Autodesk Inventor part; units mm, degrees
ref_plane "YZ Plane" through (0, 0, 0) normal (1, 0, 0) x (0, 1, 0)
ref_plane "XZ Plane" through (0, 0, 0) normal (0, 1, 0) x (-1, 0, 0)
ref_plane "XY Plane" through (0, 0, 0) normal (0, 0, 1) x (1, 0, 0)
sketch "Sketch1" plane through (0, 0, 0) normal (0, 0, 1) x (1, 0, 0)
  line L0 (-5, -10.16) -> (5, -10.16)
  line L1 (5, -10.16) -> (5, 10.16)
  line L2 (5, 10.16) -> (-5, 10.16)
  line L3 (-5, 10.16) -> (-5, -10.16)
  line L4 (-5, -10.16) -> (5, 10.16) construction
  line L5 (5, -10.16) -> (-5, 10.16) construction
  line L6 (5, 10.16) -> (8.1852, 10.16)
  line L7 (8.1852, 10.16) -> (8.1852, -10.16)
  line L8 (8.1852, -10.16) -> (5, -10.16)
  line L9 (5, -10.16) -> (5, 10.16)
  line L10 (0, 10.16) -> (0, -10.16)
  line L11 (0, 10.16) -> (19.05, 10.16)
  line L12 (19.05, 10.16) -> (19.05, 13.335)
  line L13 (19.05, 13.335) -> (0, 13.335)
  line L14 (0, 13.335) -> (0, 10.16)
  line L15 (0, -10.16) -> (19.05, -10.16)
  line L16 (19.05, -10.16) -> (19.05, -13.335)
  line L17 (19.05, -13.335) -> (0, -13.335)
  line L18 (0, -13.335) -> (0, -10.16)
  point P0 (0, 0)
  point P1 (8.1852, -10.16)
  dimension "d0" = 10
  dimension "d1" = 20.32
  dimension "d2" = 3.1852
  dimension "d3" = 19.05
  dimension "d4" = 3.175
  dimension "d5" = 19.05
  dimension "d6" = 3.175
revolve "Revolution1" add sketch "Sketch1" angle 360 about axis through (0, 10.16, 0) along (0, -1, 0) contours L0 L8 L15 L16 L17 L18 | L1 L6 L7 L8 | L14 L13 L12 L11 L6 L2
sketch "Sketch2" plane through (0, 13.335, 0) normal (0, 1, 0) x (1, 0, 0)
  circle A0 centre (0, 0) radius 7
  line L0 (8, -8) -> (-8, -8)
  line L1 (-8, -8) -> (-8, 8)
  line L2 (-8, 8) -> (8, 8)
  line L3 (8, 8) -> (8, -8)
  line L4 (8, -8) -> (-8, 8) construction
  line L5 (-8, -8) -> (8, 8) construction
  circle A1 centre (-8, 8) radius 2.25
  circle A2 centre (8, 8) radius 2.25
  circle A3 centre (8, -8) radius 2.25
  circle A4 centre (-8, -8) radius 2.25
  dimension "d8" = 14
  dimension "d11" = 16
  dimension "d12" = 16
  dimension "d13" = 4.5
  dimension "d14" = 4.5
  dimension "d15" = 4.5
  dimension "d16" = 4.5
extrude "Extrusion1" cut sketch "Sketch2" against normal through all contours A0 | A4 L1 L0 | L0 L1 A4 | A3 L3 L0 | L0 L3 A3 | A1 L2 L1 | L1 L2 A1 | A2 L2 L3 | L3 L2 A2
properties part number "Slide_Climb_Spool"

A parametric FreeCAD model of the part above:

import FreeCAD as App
import Part
import Sketcher

V = App.Vector
Q = App.Units.Quantity


def add_polygon(sketch, points):
    """Adds a closed chain of lines whose ends are joined by coincident constraints."""
    first, n = sketch.GeometryCount, len(points)
    for a, b in zip(points, points[1:] + points[:1]):
        sketch.addGeometry(Part.LineSegment(App.Vector(*a, 0), App.Vector(*b, 0)), False)
    for i in range(n):
        sketch.addConstraint(Sketcher.Constraint("Coincident", first + i, 2, first + (i + 1) % n, 1))

doc = App.newDocument("Part")
body = doc.addObject("PartDesign::Body", "Body")

sketch1 = body.newObject("Sketcher::SketchObject", "Sketch")
sketch1.AttachmentSupport = (doc.getObject("XY_Plane"), [""])
sketch1.MapMode = "FlatFace"
add_polygon(sketch1, [(5, -10.2), (0, -10.2), (0, -13.3), (19.1, -13.3), (19.1, -10.2), (8.2, -10.2), (8.2, 10.2), (19.1, 10.2), (19.1, 13.3), (0, 13.3), (0, 10.2), (5, 10.2)])
sketch1.addConstraint([
    Sketcher.Constraint("Horizontal", 0),
    Sketcher.Constraint("Vertical", 1),
    Sketcher.Constraint("Horizontal", 2),
    Sketcher.Constraint("Vertical", 3),
    Sketcher.Constraint("Horizontal", 4),
    Sketcher.Constraint("Vertical", 5),
    Sketcher.Constraint("Horizontal", 6),
    Sketcher.Constraint("Vertical", 7),
    Sketcher.Constraint("Horizontal", 8),
    Sketcher.Constraint("Vertical", 9),
    Sketcher.Constraint("Horizontal", 10),
    Sketcher.Constraint("Vertical", 11),
    Sketcher.Constraint("Symmetric", 1, 2, 8, 2, -1, 1),
    Sketcher.Constraint("Symmetric", 3, 2, 6, 2, -1),
    Sketcher.Constraint("Symmetric", 0, 2, 9, 2, -1),
    Sketcher.Constraint("Horizontal", 0, 2, 3, 2),
    Sketcher.Constraint("DistanceX", 2, 1, 2, 2, Q("19.05 mm")),
    Sketcher.Constraint("DistanceY", 5, 1, 5, 2, Q("20.32 mm")),
    Sketcher.Constraint("DistanceX", 0, 2, 0, 1, Q("5 mm")),
    Sketcher.Constraint("DistanceY", 1, 2, 1, 1, Q("3.175 mm")),
    Sketcher.Constraint("DistanceX", 10, 2, 5, 2, Q("3.1852 mm")),
])
revolution = body.newObject("PartDesign::Revolution", "Revolution")
revolution.Profile = sketch1
revolution.ReferenceAxis = (sketch1, ["V_Axis"])
revolution.Angle = 360

sketch2 = body.newObject("Sketcher::SketchObject", "Sketch001")
sketch2.AttachmentSupport = (doc.getObject("XZ_Plane"), [""])
sketch2.MapMode = "FlatFace"
sketch2.AttachmentOffset = App.Placement(V(0, 0, -13.335), App.Rotation())
sketch2.addGeometry([
    Part.Circle(V(0, 0, 0), V(0, 0, 1), 7),
    Part.Circle(V(-8, 8, 0), V(0, 0, 1), 2.2),
    Part.Circle(V(8, 8, 0), V(0, 0, 1), 2.2),
    Part.Circle(V(-8, -8, 0), V(0, 0, 1), 2.2),
    Part.Circle(V(8, -8, 0), V(0, 0, 1), 2.2),
], False)
sketch2.addConstraint([
    Sketcher.Constraint("Coincident", 0, 3, -1, 1),
    Sketcher.Constraint("Equal", 1, 2),
    Sketcher.Constraint("Equal", 2, 3),
    Sketcher.Constraint("Equal", 3, 4),
    Sketcher.Constraint("Symmetric", 2, 3, 3, 3, -1, 1),
    Sketcher.Constraint("Symmetric", 1, 3, 4, 3, -1, 1),
    Sketcher.Constraint("Symmetric", 1, 3, 2, 3, -2),
    Sketcher.Constraint("Diameter", 0, Q("14 mm")),
    Sketcher.Constraint("Diameter", 1, Q("4.5 mm")),
    Sketcher.Constraint("DistanceX", 1, 3, 2, 3, Q("16 mm")),
    Sketcher.Constraint("DistanceY", 3, 3, 1, 3, Q("16 mm")),
])
pocket1 = body.newObject("PartDesign::Pocket", "Pocket")
pocket1.Profile = sketch2
pocket1.Type = "ThroughAll"
pocket1.Reversed = True

doc.recompute()
